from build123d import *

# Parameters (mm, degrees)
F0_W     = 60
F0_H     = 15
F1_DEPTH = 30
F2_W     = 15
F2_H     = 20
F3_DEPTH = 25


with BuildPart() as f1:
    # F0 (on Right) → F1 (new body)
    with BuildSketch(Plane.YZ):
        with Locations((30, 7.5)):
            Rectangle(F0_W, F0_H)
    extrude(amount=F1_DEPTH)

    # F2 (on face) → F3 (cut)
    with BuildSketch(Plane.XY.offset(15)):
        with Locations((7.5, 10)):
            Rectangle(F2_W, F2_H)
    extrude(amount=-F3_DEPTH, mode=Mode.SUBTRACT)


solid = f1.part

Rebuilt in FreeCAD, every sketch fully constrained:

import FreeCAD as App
import Part
import Sketcher
from FreeCAD import Vector

doc = App.newDocument("Part")
body = doc.addObject("PartDesign::Body", "Body")

# Sketch on YZ plane
sketch1 = body.newObject("Sketcher::SketchObject", "Sketch")
sketch1.AttachmentSupport = (doc.getObject("YZ_Plane"), [""])
sketch1.MapMode = "FlatFace"
sketch1.addGeometry([
    Part.LineSegment(Vector(0, 15, 0), Vector(0, 0, 0)),
    Part.LineSegment(Vector(0, 0, 0), Vector(60, 0, 0)),
    Part.LineSegment(Vector(60, 0, 0), Vector(60, 15, 0)),
    Part.LineSegment(Vector(60, 15, 0), Vector(0, 15, 0)),
], False)
sketch1.addConstraint([
    Sketcher.Constraint("Coincident", 0, 2, 1, 1),
    Sketcher.Constraint("Coincident", 1, 2, 2, 1),
    Sketcher.Constraint("Coincident", 2, 2, 3, 1),
    Sketcher.Constraint("Coincident", 3, 2, 0, 1),
    Sketcher.Constraint("Vertical", 0),
    Sketcher.Constraint("Horizontal", 1),
    Sketcher.Constraint("Vertical", 2),
    Sketcher.Constraint("Horizontal", 3),
    Sketcher.Constraint("Coincident", 0, 2, -1, 1),
    Sketcher.Constraint("DistanceX", 1, 1, 1, 2, 60.0),
    Sketcher.Constraint("DistanceY", 0, 2, 0, 1, 15.0),
])
pad1 = body.newObject("PartDesign::Pad", "Pad")
pad1.Profile = sketch1
pad1.Length = 30

# Sketch on XY plane
sketch2 = body.newObject("Sketcher::SketchObject", "Sketch001")
sketch2.AttachmentSupport = (doc.getObject("XY_Plane"), [""])
sketch2.MapMode = "FlatFace"
sketch2.AttachmentOffset = App.Placement(Vector(0, 0, 15), App.Rotation())
sketch2.addGeometry([
    Part.LineSegment(Vector(0, 20, 0), Vector(0, 0, 0)),
    Part.LineSegment(Vector(0, 0, 0), Vector(15, 0, 0)),
    Part.LineSegment(Vector(15, 0, 0), Vector(15, 20, 0)),
    Part.LineSegment(Vector(15, 20, 0), Vector(0, 20, 0)),
], False)
sketch2.addConstraint([
    Sketcher.Constraint("Coincident", 0, 2, 1, 1),
    Sketcher.Constraint("Coincident", 1, 2, 2, 1),
    Sketcher.Constraint("Coincident", 2, 2, 3, 1),
    Sketcher.Constraint("Coincident", 3, 2, 0, 1),
    Sketcher.Constraint("Vertical", 0),
    Sketcher.Constraint("Horizontal", 1),
    Sketcher.Constraint("Vertical", 2),
    Sketcher.Constraint("Horizontal", 3),
    Sketcher.Constraint("Coincident", 0, 2, -1, 1),
    Sketcher.Constraint("DistanceX", 1, 1, 1, 2, 15.0),
    Sketcher.Constraint("DistanceY", 0, 2, 0, 1, 20.0),
])
pocket1 = body.newObject("PartDesign::Pocket", "Pocket")
pocket1.Profile = sketch2
pocket1.Length = 25

doc.recompute()
